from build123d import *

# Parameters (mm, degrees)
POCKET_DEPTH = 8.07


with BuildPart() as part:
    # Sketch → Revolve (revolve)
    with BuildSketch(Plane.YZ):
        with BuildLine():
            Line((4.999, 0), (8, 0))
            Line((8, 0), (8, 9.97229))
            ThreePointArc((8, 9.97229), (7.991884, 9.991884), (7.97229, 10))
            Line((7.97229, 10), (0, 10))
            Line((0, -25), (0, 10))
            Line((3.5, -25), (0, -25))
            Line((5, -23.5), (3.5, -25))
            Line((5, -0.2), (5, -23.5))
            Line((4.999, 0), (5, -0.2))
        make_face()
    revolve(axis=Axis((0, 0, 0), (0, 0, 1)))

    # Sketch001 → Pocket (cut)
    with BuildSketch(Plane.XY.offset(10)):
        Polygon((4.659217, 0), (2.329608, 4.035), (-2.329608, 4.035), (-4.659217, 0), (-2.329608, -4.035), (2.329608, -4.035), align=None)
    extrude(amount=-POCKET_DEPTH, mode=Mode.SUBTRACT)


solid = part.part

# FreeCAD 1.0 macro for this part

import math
import FreeCAD as App
import Part
import Sketcher
Q = App.Units.Quantity


def add_polygon(sketch, points):
    """Adds a closed chain of lines whose ends are joined by coincident constraints."""
    first, n = sketch.GeometryCount, len(points)
    for a, b in zip(points, points[1:] + points[:1]):
        sketch.addGeometry(Part.LineSegment(App.Vector(*a, 0), App.Vector(*b, 0)), False)
    for i in range(n):
        sketch.addConstraint(Sketcher.Constraint("Coincident", first + i, 2, first + (i + 1) % n, 1))

doc = App.newDocument("Part")
body = doc.addObject("PartDesign::Body", "Body")

# Sketch on YZ plane
sketch1 = body.newObject("Sketcher::SketchObject", "Sketch")
sketch1.AttachmentSupport = (doc.getObject("YZ_Plane"), [""])
sketch1.MapMode = "FlatFace"
sketch1.addGeometry(Part.LineSegment(App.Vector(4.999, 0, 0), App.Vector(8, 0, 0)), False)
sketch1.addGeometry(Part.LineSegment(App.Vector(8, 0, 0), App.Vector(8, 9.972, 0)), False)
sketch1.addGeometry(Part.ArcOfCircle(Part.Circle(App.Vector(7.972, 9.972, 0), App.Vector(0, 0, 1), 0.028), math.radians(0), math.radians(90)), False)
sketch1.addGeometry(Part.LineSegment(App.Vector(7.972, 10, 0), App.Vector(0, 10, 0)), False)
sketch1.addGeometry(Part.LineSegment(App.Vector(0, 10, 0), App.Vector(0, -25, 0)), False)
sketch1.addGeometry(Part.LineSegment(App.Vector(0, -25, 0), App.Vector(3.5, -25, 0)), False)
sketch1.addGeometry(Part.LineSegment(App.Vector(3.5, -25, 0), App.Vector(5, -23.5, 0)), False)
sketch1.addGeometry(Part.LineSegment(App.Vector(5, -23.5, 0), App.Vector(5, -0.2, 0)), False)
sketch1.addGeometry(Part.LineSegment(App.Vector(5, -0.2, 0), App.Vector(4.999, 0, 0)), False)
sketch1.addConstraint(Sketcher.Constraint("Coincident", 0, 2, 1, 1))
sketch1.addConstraint(Sketcher.Constraint("Coincident", 1, 2, 2, 1))
sketch1.addConstraint(Sketcher.Constraint("Coincident", 2, 2, 3, 1))
sketch1.addConstraint(Sketcher.Constraint("Coincident", 3, 2, 4, 1))
sketch1.addConstraint(Sketcher.Constraint("Coincident", 4, 2, 5, 1))
sketch1.addConstraint(Sketcher.Constraint("Coincident", 5, 2, 6, 1))
sketch1.addConstraint(Sketcher.Constraint("Coincident", 6, 2, 7, 1))
sketch1.addConstraint(Sketcher.Constraint("Coincident", 7, 2, 8, 1))
sketch1.addConstraint(Sketcher.Constraint("Coincident", 8, 2, 0, 1))
sketch1.addConstraint(Sketcher.Constraint("Horizontal", 0))
sketch1.addConstraint(Sketcher.Constraint("Vertical", 1))
sketch1.addConstraint(Sketcher.Constraint("Horizontal", 3))
sketch1.addConstraint(Sketcher.Constraint("Vertical", 4))
sketch1.addConstraint(Sketcher.Constraint("Horizontal", 5))
sketch1.addConstraint(Sketcher.Constraint("Vertical", 7))
sketch1.addConstraint(Sketcher.Constraint("PointOnObject", 0, 2, -1))
sketch1.addConstraint(Sketcher.Constraint("PointOnObject", 3, 2, -2))
sketch1.addConstraint(Sketcher.Constraint("Horizontal", 2, 3, 1, 2))
sketch1.addConstraint(Sketcher.Constraint("DistanceY", 4, 2, 4, 1, 35.0))
sketch1.addConstraint(Sketcher.Constraint("Angle", 6, Q("45 deg")))
sketch1.addConstraint(Sketcher.Constraint("DistanceX", 5, 1, 5, 2, 3.5))
sketch1.addConstraint(Sketcher.Constraint("DistanceY", 7, 1, 7, 2, 23.3))
sketch1.addConstraint(Sketcher.Constraint("DistanceX", -1, 1, 0, 2, 8.0))
sketch1.addConstraint(Sketcher.Constraint("DistanceY", -1, 1, 2, 2, 10.0))
sketch1.addConstraint(Sketcher.Constraint("DistanceX", -1, 1, 6, 2, 5.0))
sketch1.addConstraint(Sketcher.Constraint("DistanceX", 0, 1, 0, 2, 3.001))
sketch1.addConstraint(Sketcher.Constraint("Radius", 2, 0.02771))
sketch1.addConstraint(Sketcher.Constraint("DistanceX", 3, 2, 3, 1, 7.97229))
revolution = body.newObject("PartDesign::Revolution", "Revolution")
revolution.Profile = sketch1
revolution.ReferenceAxis = (sketch1, ["V_Axis"])
revolution.Angle = 360

# Sketch on XY plane
sketch2 = body.newObject("Sketcher::SketchObject", "Sketch001")
sketch2.AttachmentSupport = (doc.getObject("XY_Plane"), [""])
sketch2.MapMode = "FlatFace"
sketch2.AttachmentOffset = App.Placement(App.Vector(0, 0, 10), App.Rotation())
add_polygon(sketch2, [(4.7, 0), (2.3, 4), (-2.3, 4), (-4.7, 0), (-2.3, -4), (2.3, -4)])  # lines 0-5
sketch2.addConstraint(Sketcher.Constraint("Horizontal", 1))
sketch2.addConstraint(Sketcher.Constraint("Horizontal", 4))
sketch2.addConstraint(Sketcher.Constraint("Symmetric", 0, 2, 3, 2, -1, 1))
sketch2.addConstraint(Sketcher.Constraint("Symmetric", 2, 2, 5, 2, -1, 1))
sketch2.addConstraint(Sketcher.Constraint("PointOnObject", 2, 2, -1))
sketch2.addConstraint(Sketcher.Constraint("Parallel", 2, 5))
sketch2.addConstraint(Sketcher.Constraint("Vertical", 1, 2, 3, 2))
sketch2.addConstraint(Sketcher.Constraint("Angle", 0, Q("120.000007 deg")))
sketch2.addConstraint(Sketcher.Constraint("DistanceY", 3, 2, 1, 2, 8.07))
sketch2.addConstraint(Sketcher.Constraint("DistanceX", 1, 2, 1, 1, 4.659216))
pocket1 = body.newObject("PartDesign::Pocket", "Pocket")
pocket1.Profile = sketch2
pocket1.Length = 8.07

doc.recompute()
